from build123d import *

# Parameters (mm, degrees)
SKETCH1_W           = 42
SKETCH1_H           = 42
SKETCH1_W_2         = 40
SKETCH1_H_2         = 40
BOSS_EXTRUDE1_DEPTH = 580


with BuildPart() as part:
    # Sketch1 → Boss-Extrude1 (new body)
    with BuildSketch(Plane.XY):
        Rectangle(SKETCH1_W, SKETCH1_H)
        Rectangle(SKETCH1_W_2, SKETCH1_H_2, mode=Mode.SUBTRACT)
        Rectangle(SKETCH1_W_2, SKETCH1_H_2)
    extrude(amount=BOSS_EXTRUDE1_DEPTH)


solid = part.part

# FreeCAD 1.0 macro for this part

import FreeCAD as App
import Part
import Sketcher
from FreeCAD import Vector
Q = App.Units.Quantity


def add_polygon(sketch, points):
    """Adds a closed chain of lines whose ends are joined by coincident constraints."""
    first, n = sketch.GeometryCount, len(points)
    for a, b in zip(points, points[1:] + points[:1]):
        sketch.addGeometry(Part.LineSegment(App.Vector(*a, 0), App.Vector(*b, 0)), False)
    for i in range(n):
        sketch.addConstraint(Sketcher.Constraint("Coincident", first + i, 2, first + (i + 1) % n, 1))

doc = App.newDocument("Part")
body = doc.addObject("PartDesign::Body", "Body")

# Sketch on XY plane
sketch1 = body.newObject("Sketcher::SketchObject", "Sketch")
sketch1.AttachmentSupport = (doc.getObject("XY_Plane"), [""])
sketch1.MapMode = "FlatFace"
add_polygon(sketch1, [(-21, 21), (-21, -21), (21, -21), (21, 21)])  # lines 0-3
sketch1.addConstraint([
    Sketcher.Constraint("Vertical", 0),
    Sketcher.Constraint("Horizontal", 1),
    Sketcher.Constraint("Vertical", 2),
    Sketcher.Constraint("Horizontal", 3),
    Sketcher.Constraint("Symmetric", 0, 2, 2, 2, -1, 1),
    Sketcher.Constraint("Equal", 3, 0),
    Sketcher.Constraint("DistanceX", 1, 1, 1, 2, Q("42 mm")),
])
pad1 = body.newObject("PartDesign::Pad", "Pad")
pad1.Profile = sketch1
pad1.Length = 580

doc.recompute()
